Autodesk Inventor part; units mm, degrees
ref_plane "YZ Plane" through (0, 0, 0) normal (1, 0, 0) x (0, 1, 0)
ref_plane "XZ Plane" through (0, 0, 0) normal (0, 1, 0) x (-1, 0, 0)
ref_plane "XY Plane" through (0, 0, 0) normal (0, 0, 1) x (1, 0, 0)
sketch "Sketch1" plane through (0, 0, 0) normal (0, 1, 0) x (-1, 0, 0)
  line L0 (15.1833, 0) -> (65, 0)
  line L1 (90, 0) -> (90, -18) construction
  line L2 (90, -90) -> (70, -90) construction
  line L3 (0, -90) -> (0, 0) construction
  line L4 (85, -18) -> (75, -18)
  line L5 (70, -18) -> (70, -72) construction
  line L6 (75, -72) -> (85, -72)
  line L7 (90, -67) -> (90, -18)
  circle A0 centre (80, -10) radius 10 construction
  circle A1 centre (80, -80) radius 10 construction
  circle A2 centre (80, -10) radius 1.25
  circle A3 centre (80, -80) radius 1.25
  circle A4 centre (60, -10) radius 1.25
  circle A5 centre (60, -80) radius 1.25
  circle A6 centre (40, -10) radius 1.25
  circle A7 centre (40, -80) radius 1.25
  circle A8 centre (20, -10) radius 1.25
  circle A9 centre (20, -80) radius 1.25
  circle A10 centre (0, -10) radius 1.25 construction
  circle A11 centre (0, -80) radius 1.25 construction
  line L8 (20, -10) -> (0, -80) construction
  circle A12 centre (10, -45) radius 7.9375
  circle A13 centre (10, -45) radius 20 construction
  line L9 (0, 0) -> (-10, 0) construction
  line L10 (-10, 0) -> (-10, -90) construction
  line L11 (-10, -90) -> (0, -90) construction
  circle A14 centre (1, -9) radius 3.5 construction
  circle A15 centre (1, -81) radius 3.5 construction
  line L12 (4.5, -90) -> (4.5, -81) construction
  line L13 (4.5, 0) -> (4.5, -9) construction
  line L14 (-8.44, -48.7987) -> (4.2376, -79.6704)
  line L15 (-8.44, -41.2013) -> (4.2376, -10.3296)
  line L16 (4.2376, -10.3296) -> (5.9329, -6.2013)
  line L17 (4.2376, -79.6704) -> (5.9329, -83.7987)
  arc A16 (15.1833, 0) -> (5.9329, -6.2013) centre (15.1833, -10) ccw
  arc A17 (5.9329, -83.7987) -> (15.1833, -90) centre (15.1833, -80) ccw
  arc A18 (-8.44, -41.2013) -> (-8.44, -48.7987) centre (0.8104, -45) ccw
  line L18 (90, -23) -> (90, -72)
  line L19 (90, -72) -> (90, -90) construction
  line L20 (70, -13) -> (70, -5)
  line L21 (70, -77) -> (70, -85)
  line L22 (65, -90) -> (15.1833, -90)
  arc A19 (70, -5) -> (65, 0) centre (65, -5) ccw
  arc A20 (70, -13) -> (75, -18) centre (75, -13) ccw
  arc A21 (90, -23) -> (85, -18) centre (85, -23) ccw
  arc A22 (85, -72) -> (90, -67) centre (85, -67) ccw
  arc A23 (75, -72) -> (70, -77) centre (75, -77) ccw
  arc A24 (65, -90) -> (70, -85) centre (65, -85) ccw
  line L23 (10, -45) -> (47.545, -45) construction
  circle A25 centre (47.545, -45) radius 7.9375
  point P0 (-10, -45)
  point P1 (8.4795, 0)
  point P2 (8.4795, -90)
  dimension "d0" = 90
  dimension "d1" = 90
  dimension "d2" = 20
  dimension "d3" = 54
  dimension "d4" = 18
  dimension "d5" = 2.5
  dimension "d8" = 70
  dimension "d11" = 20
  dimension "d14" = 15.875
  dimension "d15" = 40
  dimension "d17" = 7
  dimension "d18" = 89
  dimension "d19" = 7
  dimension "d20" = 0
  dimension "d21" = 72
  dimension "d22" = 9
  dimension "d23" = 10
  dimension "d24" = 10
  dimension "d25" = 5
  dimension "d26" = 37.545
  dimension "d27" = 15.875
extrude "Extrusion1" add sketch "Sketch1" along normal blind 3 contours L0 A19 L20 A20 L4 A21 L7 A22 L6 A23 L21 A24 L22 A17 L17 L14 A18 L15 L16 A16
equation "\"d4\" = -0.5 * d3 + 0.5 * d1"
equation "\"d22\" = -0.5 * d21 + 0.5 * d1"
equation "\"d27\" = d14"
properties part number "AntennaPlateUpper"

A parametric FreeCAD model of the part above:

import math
import FreeCAD as App
import Part
import Sketcher

V = App.Vector
Q = App.Units.Quantity

doc = App.newDocument("Part")
body = doc.addObject("PartDesign::Body", "Body")

# Sketch on XZ plane
sketch1 = body.newObject("Sketcher::SketchObject", "Sketch")
sketch1.AttachmentSupport = (doc.getObject("XZ_Plane"), [""])
sketch1.MapMode = "FlatFace"
sketch1.addGeometry([
    Part.LineSegment(V(-65, 0, 0), V(-15.2, 0, 0)),  # 0
    Part.ArcOfCircle(Part.Circle(V(-15.2, -10, 0), V(0, 0, 1), 10), math.radians(22), math.radians(90)),  # 1
    Part.LineSegment(V(-5.9, -6.2, 0), V(-4.2, -10.3, 0)),  # 2
    Part.LineSegment(V(-4.2, -10.3, 0), V(8.4, -41.2, 0)),  # 3
    Part.ArcOfCircle(Part.Circle(V(-0.8, -45, 0), V(0, 0, 1), 10), math.radians(-22), math.radians(22)),  # 4
    Part.LineSegment(V(8.4, -48.8, 0), V(-4.2, -79.7, 0)),  # 5
    Part.LineSegment(V(-4.2, -79.7, 0), V(-5.9, -83.8, 0)),  # 6
    Part.ArcOfCircle(Part.Circle(V(-15.2, -80, 0), V(0, 0, 1), 10), math.radians(-90), math.radians(-22)),  # 7
    Part.LineSegment(V(-15.2, -90, 0), V(-65, -90, 0)),  # 8
    Part.ArcOfCircle(Part.Circle(V(-65, -85, 0), V(0, 0, 1), 5), math.radians(180), math.radians(270)),  # 9
    Part.LineSegment(V(-70, -85, 0), V(-70, -77, 0)),  # 10
    Part.ArcOfCircle(Part.Circle(V(-75, -77, 0), V(0, 0, 1), 5), math.radians(0), math.radians(90)),  # 11
    Part.LineSegment(V(-75, -72, 0), V(-85, -72, 0)),  # 12
    Part.ArcOfCircle(Part.Circle(V(-85, -67, 0), V(0, 0, 1), 5), math.radians(180), math.radians(270)),  # 13
    Part.LineSegment(V(-90, -67, 0), V(-90, -23, 0)),  # 14
    Part.ArcOfCircle(Part.Circle(V(-85, -23, 0), V(0, 0, 1), 5), math.radians(90), math.radians(180)),  # 15
    Part.LineSegment(V(-85, -18, 0), V(-75, -18, 0)),  # 16
    Part.ArcOfCircle(Part.Circle(V(-75, -13, 0), V(0, 0, 1), 5), math.radians(-90), math.radians(0)),  # 17
    Part.LineSegment(V(-70, -13, 0), V(-70, -5, 0)),  # 18
    Part.ArcOfCircle(Part.Circle(V(-65, -5, 0), V(0, 0, 1), 5), math.radians(90), math.radians(180)),  # 19
    Part.Circle(V(-20, -80, 0), V(0, 0, 1), 1.2),  # 20
    Part.Circle(V(-40, -80, 0), V(0, 0, 1), 1.2),  # 21
    Part.Circle(V(-60, -80, 0), V(0, 0, 1), 1.2),  # 22
    Part.Circle(V(-10, -45, 0), V(0, 0, 1), 7.9),  # 23
    Part.Circle(V(-20, -10, 0), V(0, 0, 1), 1.2),  # 24
    Part.Circle(V(-40, -10, 0), V(0, 0, 1), 1.2),  # 25
    Part.Circle(V(-47.5, -45, 0), V(0, 0, 1), 7.9),  # 26
    Part.Circle(V(-60, -10, 0), V(0, 0, 1), 1.2),  # 27
], False)
sketch1.addConstraint([
    Sketcher.Constraint("Tangent", 0, 2, 1, 2),
    Sketcher.Constraint("Tangent", 1, 1, 2, 1),
    Sketcher.Constraint("Coincident", 2, 2, 3, 1),
    Sketcher.Constraint("Tangent", 3, 2, 4, 2),
    Sketcher.Constraint("Tangent", 4, 1, 5, 1),
    Sketcher.Constraint("Coincident", 5, 2, 6, 1),
    Sketcher.Constraint("Tangent", 6, 2, 7, 2),
    Sketcher.Constraint("Tangent", 7, 1, 8, 1),
    Sketcher.Constraint("Tangent", 8, 2, 9, 2),
    Sketcher.Constraint("Tangent", 9, 1, 10, 1),
    Sketcher.Constraint("Tangent", 10, 2, 11, 1),
    Sketcher.Constraint("Tangent", 11, 2, 12, 1),
    Sketcher.Constraint("Tangent", 12, 2, 13, 2),
    Sketcher.Constraint("Tangent", 13, 1, 14, 1),
    Sketcher.Constraint("Tangent", 14, 2, 15, 2),
    Sketcher.Constraint("Tangent", 15, 1, 16, 1),
    Sketcher.Constraint("Tangent", 16, 2, 17, 1),
    Sketcher.Constraint("Tangent", 17, 2, 18, 1),
    Sketcher.Constraint("Tangent", 18, 2, 19, 2),
    Sketcher.Constraint("Tangent", 19, 1, 0, 1),
    Sketcher.Constraint("Horizontal", 0),
    Sketcher.Constraint("Horizontal", 8),
    Sketcher.Constraint("Vertical", 10),
    Sketcher.Constraint("Horizontal", 12),
    Sketcher.Constraint("Vertical", 14),
    Sketcher.Constraint("Horizontal", 16),
    Sketcher.Constraint("Vertical", 18),
    Sketcher.Constraint("Equal", 1, 4),
    Sketcher.Constraint("Equal", 4, 7),
    Sketcher.Constraint("Equal", 9, 11),
    Sketcher.Constraint("Equal", 11, 13),
    Sketcher.Constraint("Equal", 13, 15),
    Sketcher.Constraint("Equal", 15, 17),
    Sketcher.Constraint("Equal", 17, 19),
    Sketcher.Constraint("Equal", 20, 21),
    Sketcher.Constraint("Equal", 21, 22),
    Sketcher.Constraint("Equal", 22, 24),
    Sketcher.Constraint("Equal", 24, 25),
    Sketcher.Constraint("Equal", 23, 26),
    Sketcher.Constraint("Equal", 25, 27),
    Sketcher.Constraint("PointOnObject", 0, 2, -1),
    Sketcher.Constraint("Parallel", 2, 3),
    Sketcher.Constraint("Parallel", 5, 6),
    Sketcher.Constraint("Horizontal", 7, 3, 20, 3),
    Sketcher.Constraint("Horizontal", 20, 3, 21, 3),
    Sketcher.Constraint("Horizontal", 21, 3, 22, 3),
    Sketcher.Constraint("Horizontal", 4, 3, 23, 3),
    Sketcher.Constraint("Horizontal", 1, 3, 24, 3),
    Sketcher.Constraint("Horizontal", 24, 3, 25, 3),
    Sketcher.Constraint("Horizontal", 23, 3, 26, 3),
    Sketcher.Constraint("Horizontal", 25, 3, 27, 3),
    Sketcher.Constraint("Vertical", 1, 3, 7, 3),
    Sketcher.Constraint("Vertical", 11, 3, 17, 3),
    Sketcher.Constraint("Vertical", 20, 3, 24, 3),
    Sketcher.Constraint("Vertical", 21, 3, 25, 3),
    Sketcher.Constraint("Vertical", 22, 3, 27, 3),
    Sketcher.Constraint("Vertical", 3, 2, 4, 1),
    Sketcher.Constraint("Vertical", 2, 2, 5, 2),
    Sketcher.Constraint("Equal", 10, 18),
    Sketcher.Constraint("Radius", 1, Q("10 mm")),
    Sketcher.Constraint("Radius", 9, Q("5 mm")),
    Sketcher.Constraint("Diameter", 20, Q("2.5 mm")),
    Sketcher.Constraint("DistanceX", 12, 2, 12, 1, Q("10 mm")),
    Sketcher.Constraint("Diameter", 23, Q("15.875 mm")),
    Sketcher.Constraint("DistanceX", 20, 3, -1, 1, Q("20 mm")),
    Sketcher.Constraint("DistanceX", 21, 3, -1, 1, Q("40 mm")),
    Sketcher.Constraint("DistanceX", 23, 3, -1, 1, Q("10 mm")),
    Sketcher.Constraint("DistanceY", 7, 1, -1, 1, Q("90 mm")),
    Sketcher.Constraint("DistanceX", 9, 1, -1, 1, Q("70 mm")),
    Sketcher.Constraint("DistanceY", 11, 2, -1, 1, Q("72 mm")),
    Sketcher.Constraint("DistanceX", 9, 3, 22, 3, Q("5 mm")),
    Sketcher.Constraint("DistanceX", 26, 3, 23, 3, Q("37.545 mm")),
    Sketcher.Constraint("DistanceX", -1, 1, 3, 2, Q("8.44 mm")),
    Sketcher.Constraint("DistanceX", 0, 1, 0, 2, Q("49.8167 mm")),
    Sketcher.Constraint("DistanceY", 4, 1, 2, 2, Q("38.469 mm")),
])
pad1 = body.newObject("PartDesign::Pad", "Pad")
pad1.Profile = sketch1
pad1.Length = 3
pad1.Reversed = True

doc.recompute()
